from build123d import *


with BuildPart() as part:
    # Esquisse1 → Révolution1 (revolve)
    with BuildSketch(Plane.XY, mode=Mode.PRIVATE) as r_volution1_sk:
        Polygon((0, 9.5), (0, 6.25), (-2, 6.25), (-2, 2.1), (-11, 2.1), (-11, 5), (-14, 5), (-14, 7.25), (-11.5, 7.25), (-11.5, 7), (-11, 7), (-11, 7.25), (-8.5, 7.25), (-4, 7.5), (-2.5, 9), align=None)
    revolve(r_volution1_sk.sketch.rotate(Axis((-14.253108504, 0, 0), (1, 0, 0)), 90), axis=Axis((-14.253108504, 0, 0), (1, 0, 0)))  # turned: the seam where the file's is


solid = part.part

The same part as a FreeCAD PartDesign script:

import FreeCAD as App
import Part
import Sketcher
Q = App.Units.Quantity

doc = App.newDocument("Part")
body = doc.addObject("PartDesign::Body", "Body")

# Sketch on XY plane
sketch1 = body.newObject("Sketcher::SketchObject", "Sketch")
sketch1.AttachmentSupport = (doc.getObject("XY_Plane"), [""])
sketch1.MapMode = "FlatFace"
sketch1.addGeometry(Part.LineSegment(App.Vector(0, 6.25, 0), App.Vector(0, 9.5, 0)), False)
sketch1.addGeometry(Part.LineSegment(App.Vector(0, 9.5, 0), App.Vector(-2.5, 9, 0)), False)
sketch1.addGeometry(Part.LineSegment(App.Vector(-2.5, 9, 0), App.Vector(-4, 7.5, 0)), False)
sketch1.addGeometry(Part.LineSegment(App.Vector(-4, 7.5, 0), App.Vector(-8.5, 7.25, 0)), False)
sketch1.addGeometry(Part.LineSegment(App.Vector(-8.5, 7.25, 0), App.Vector(-11, 7.25, 0)), False)
sketch1.addGeometry(Part.LineSegment(App.Vector(-11, 7.25, 0), App.Vector(-11, 7, 0)), False)
sketch1.addGeometry(Part.LineSegment(App.Vector(-11, 7, 0), App.Vector(-11.5, 7, 0)), False)
sketch1.addGeometry(Part.LineSegment(App.Vector(-11.5, 7, 0), App.Vector(-11.5, 7.25, 0)), False)
sketch1.addGeometry(Part.LineSegment(App.Vector(-11.5, 7.25, 0), App.Vector(-14, 7.25, 0)), False)
sketch1.addGeometry(Part.LineSegment(App.Vector(-14, 7.25, 0), App.Vector(-14, 5, 0)), False)
sketch1.addGeometry(Part.LineSegment(App.Vector(-14, 5, 0), App.Vector(-11, 5, 0)), False)
sketch1.addGeometry(Part.LineSegment(App.Vector(-11, 5, 0), App.Vector(-11, 2.1, 0)), False)
sketch1.addGeometry(Part.LineSegment(App.Vector(-11, 2.1, 0), App.Vector(-2, 2.1, 0)), False)
sketch1.addGeometry(Part.LineSegment(App.Vector(-2, 2.1, 0), App.Vector(-2, 6.25, 0)), False)
sketch1.addGeometry(Part.LineSegment(App.Vector(-2, 6.25, 0), App.Vector(0, 6.25, 0)), False)
sketch1.addConstraint(Sketcher.Constraint("Coincident", 0, 2, 1, 1))
sketch1.addConstraint(Sketcher.Constraint("Coincident", 1, 2, 2, 1))
sketch1.addConstraint(Sketcher.Constraint("Coincident", 2, 2, 3, 1))
sketch1.addConstraint(Sketcher.Constraint("Coincident", 3, 2, 4, 1))
sketch1.addConstraint(Sketcher.Constraint("Coincident", 4, 2, 5, 1))
sketch1.addConstraint(Sketcher.Constraint("Coincident", 5, 2, 6, 1))
sketch1.addConstraint(Sketcher.Constraint("Coincident", 6, 2, 7, 1))
sketch1.addConstraint(Sketcher.Constraint("Coincident", 7, 2, 8, 1))
sketch1.addConstraint(Sketcher.Constraint("Coincident", 8, 2, 9, 1))
sketch1.addConstraint(Sketcher.Constraint("Coincident", 9, 2, 10, 1))
sketch1.addConstraint(Sketcher.Constraint("Coincident", 10, 2, 11, 1))
sketch1.addConstraint(Sketcher.Constraint("Coincident", 11, 2, 12, 1))
sketch1.addConstraint(Sketcher.Constraint("Coincident", 12, 2, 13, 1))
sketch1.addConstraint(Sketcher.Constraint("Coincident", 13, 2, 14, 1))
sketch1.addConstraint(Sketcher.Constraint("Coincident", 14, 2, 0, 1))
sketch1.addConstraint(Sketcher.Constraint("Vertical", 0))
sketch1.addConstraint(Sketcher.Constraint("Horizontal", 4))
sketch1.addConstraint(Sketcher.Constraint("Vertical", 5))
sketch1.addConstraint(Sketcher.Constraint("Horizontal", 6))
sketch1.addConstraint(Sketcher.Constraint("Vertical", 7))
sketch1.addConstraint(Sketcher.Constraint("Horizontal", 8))
sketch1.addConstraint(Sketcher.Constraint("Vertical", 9))
sketch1.addConstraint(Sketcher.Constraint("Horizontal", 10))
sketch1.addConstraint(Sketcher.Constraint("Vertical", 11))
sketch1.addConstraint(Sketcher.Constraint("Horizontal", 12))
sketch1.addConstraint(Sketcher.Constraint("Vertical", 13))
sketch1.addConstraint(Sketcher.Constraint("Horizontal", 14))
sketch1.addConstraint(Sketcher.Constraint("PointOnObject", 0, 2, -2))
sketch1.addConstraint(Sketcher.Constraint("Horizontal", 4, 2, 7, 2))
sketch1.addConstraint(Sketcher.Constraint("Vertical", 5, 2, 10, 2))
sketch1.addConstraint(Sketcher.Constraint("Equal", 4, 8))
sketch1.addConstraint(Sketcher.Constraint("DistanceX", 10, 1, 10, 2, Q("3 mm")))
sketch1.addConstraint(Sketcher.Constraint("DistanceX", 12, 1, 12, 2, Q("9 mm")))
sketch1.addConstraint(Sketcher.Constraint("DistanceX", 14, 1, 14, 2, Q("2 mm")))
sketch1.addConstraint(Sketcher.Constraint("Angle", 2, Q("-135 deg")))
sketch1.addConstraint(Sketcher.Constraint("DistanceX", 4, 2, 4, 1, Q("2.5 mm")))
sketch1.addConstraint(Sketcher.Constraint("DistanceY", 11, 2, 11, 1, Q("2.9 mm")))
sketch1.addConstraint(Sketcher.Constraint("DistanceY", -1, 1, 1, 2, Q("9 mm")))
sketch1.addConstraint(Sketcher.Constraint("DistanceX", 2, 2, -1, 1, Q("4 mm")))
sketch1.addConstraint(Sketcher.Constraint("DistanceY", -1, 1, 5, 2, Q("7 mm")))
sketch1.addConstraint(Sketcher.Constraint("DistanceY", -1, 1, 9, 2, Q("5 mm")))
sketch1.addConstraint(Sketcher.Constraint("DistanceY", 2, 2, 0, 2, Q("2 mm")))
sketch1.addConstraint(Sketcher.Constraint("DistanceX", 3, 2, 1, 2, Q("6 mm")))
sketch1.addConstraint(Sketcher.Constraint("DistanceY", 13, 2, 3, 2, Q("1 mm")))
sketch1.addConstraint(Sketcher.Constraint("DistanceY", 0, 1, 0, 2, Q("3.25 mm")))
revolution = body.newObject("PartDesign::Revolution", "Revolution")
revolution.Profile = sketch1
revolution.ReferenceAxis = (sketch1, ["H_Axis"])
revolution.Angle = 360

doc.recompute()
